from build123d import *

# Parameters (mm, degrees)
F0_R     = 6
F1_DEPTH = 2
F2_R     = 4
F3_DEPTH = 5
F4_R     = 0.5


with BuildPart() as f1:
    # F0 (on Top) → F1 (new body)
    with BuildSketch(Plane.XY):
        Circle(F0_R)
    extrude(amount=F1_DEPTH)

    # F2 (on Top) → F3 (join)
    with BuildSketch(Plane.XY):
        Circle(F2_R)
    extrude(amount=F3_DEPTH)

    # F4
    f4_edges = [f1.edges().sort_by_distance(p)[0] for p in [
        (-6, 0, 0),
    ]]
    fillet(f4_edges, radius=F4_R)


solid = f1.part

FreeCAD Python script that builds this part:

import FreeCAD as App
import Part
import Sketcher

V = App.Vector
Q = App.Units.Quantity


def edges_at(feature, points):
    """Names of the edges that pass closest to the given points."""
    edges = feature.Shape.Edges
    near = lambda p: min(range(len(edges)), key=lambda i: edges[i].distToShape(Part.Vertex(*p))[0])
    return sorted({f"Edge{near(p) + 1}" for p in points})

doc = App.newDocument("Part")
body = doc.addObject("PartDesign::Body", "Body")

# Sketch on XY plane
sketch1 = body.newObject("Sketcher::SketchObject", "Sketch")
sketch1.AttachmentSupport = (doc.getObject("XY_Plane"), [""])
sketch1.MapMode = "FlatFace"
sketch1.addGeometry(Part.Circle(V(0, 0, 0), V(0, 0, 1), 6), False)
sketch1.addConstraint(Sketcher.Constraint("Coincident", 0, 3, -1, 1))
sketch1.addConstraint(Sketcher.Constraint("Diameter", 0, Q("12 mm")))
pad1 = body.newObject("PartDesign::Pad", "Pad")
pad1.Profile = sketch1
pad1.Length = 2

# Sketch on XY plane
sketch2 = body.newObject("Sketcher::SketchObject", "Sketch001")
sketch2.AttachmentSupport = (doc.getObject("XY_Plane"), [""])
sketch2.MapMode = "FlatFace"
sketch2.addGeometry(Part.Circle(V(0, 0, 0), V(0, 0, 1), 4), False)
sketch2.addConstraint(Sketcher.Constraint("Coincident", 0, 3, -1, 1))
sketch2.addConstraint(Sketcher.Constraint("Diameter", 0, Q("8 mm")))
pad2 = body.newObject("PartDesign::Pad", "Pad001")
pad2.Profile = sketch2
pad2.Length = 5
doc.recompute()

fillet = body.newObject("PartDesign::Fillet", "Fillet")
fillet.Base = (pad2, edges_at(pad2, [(-6, 0, 0)]))
fillet.Radius = 0.5

doc.recompute()
